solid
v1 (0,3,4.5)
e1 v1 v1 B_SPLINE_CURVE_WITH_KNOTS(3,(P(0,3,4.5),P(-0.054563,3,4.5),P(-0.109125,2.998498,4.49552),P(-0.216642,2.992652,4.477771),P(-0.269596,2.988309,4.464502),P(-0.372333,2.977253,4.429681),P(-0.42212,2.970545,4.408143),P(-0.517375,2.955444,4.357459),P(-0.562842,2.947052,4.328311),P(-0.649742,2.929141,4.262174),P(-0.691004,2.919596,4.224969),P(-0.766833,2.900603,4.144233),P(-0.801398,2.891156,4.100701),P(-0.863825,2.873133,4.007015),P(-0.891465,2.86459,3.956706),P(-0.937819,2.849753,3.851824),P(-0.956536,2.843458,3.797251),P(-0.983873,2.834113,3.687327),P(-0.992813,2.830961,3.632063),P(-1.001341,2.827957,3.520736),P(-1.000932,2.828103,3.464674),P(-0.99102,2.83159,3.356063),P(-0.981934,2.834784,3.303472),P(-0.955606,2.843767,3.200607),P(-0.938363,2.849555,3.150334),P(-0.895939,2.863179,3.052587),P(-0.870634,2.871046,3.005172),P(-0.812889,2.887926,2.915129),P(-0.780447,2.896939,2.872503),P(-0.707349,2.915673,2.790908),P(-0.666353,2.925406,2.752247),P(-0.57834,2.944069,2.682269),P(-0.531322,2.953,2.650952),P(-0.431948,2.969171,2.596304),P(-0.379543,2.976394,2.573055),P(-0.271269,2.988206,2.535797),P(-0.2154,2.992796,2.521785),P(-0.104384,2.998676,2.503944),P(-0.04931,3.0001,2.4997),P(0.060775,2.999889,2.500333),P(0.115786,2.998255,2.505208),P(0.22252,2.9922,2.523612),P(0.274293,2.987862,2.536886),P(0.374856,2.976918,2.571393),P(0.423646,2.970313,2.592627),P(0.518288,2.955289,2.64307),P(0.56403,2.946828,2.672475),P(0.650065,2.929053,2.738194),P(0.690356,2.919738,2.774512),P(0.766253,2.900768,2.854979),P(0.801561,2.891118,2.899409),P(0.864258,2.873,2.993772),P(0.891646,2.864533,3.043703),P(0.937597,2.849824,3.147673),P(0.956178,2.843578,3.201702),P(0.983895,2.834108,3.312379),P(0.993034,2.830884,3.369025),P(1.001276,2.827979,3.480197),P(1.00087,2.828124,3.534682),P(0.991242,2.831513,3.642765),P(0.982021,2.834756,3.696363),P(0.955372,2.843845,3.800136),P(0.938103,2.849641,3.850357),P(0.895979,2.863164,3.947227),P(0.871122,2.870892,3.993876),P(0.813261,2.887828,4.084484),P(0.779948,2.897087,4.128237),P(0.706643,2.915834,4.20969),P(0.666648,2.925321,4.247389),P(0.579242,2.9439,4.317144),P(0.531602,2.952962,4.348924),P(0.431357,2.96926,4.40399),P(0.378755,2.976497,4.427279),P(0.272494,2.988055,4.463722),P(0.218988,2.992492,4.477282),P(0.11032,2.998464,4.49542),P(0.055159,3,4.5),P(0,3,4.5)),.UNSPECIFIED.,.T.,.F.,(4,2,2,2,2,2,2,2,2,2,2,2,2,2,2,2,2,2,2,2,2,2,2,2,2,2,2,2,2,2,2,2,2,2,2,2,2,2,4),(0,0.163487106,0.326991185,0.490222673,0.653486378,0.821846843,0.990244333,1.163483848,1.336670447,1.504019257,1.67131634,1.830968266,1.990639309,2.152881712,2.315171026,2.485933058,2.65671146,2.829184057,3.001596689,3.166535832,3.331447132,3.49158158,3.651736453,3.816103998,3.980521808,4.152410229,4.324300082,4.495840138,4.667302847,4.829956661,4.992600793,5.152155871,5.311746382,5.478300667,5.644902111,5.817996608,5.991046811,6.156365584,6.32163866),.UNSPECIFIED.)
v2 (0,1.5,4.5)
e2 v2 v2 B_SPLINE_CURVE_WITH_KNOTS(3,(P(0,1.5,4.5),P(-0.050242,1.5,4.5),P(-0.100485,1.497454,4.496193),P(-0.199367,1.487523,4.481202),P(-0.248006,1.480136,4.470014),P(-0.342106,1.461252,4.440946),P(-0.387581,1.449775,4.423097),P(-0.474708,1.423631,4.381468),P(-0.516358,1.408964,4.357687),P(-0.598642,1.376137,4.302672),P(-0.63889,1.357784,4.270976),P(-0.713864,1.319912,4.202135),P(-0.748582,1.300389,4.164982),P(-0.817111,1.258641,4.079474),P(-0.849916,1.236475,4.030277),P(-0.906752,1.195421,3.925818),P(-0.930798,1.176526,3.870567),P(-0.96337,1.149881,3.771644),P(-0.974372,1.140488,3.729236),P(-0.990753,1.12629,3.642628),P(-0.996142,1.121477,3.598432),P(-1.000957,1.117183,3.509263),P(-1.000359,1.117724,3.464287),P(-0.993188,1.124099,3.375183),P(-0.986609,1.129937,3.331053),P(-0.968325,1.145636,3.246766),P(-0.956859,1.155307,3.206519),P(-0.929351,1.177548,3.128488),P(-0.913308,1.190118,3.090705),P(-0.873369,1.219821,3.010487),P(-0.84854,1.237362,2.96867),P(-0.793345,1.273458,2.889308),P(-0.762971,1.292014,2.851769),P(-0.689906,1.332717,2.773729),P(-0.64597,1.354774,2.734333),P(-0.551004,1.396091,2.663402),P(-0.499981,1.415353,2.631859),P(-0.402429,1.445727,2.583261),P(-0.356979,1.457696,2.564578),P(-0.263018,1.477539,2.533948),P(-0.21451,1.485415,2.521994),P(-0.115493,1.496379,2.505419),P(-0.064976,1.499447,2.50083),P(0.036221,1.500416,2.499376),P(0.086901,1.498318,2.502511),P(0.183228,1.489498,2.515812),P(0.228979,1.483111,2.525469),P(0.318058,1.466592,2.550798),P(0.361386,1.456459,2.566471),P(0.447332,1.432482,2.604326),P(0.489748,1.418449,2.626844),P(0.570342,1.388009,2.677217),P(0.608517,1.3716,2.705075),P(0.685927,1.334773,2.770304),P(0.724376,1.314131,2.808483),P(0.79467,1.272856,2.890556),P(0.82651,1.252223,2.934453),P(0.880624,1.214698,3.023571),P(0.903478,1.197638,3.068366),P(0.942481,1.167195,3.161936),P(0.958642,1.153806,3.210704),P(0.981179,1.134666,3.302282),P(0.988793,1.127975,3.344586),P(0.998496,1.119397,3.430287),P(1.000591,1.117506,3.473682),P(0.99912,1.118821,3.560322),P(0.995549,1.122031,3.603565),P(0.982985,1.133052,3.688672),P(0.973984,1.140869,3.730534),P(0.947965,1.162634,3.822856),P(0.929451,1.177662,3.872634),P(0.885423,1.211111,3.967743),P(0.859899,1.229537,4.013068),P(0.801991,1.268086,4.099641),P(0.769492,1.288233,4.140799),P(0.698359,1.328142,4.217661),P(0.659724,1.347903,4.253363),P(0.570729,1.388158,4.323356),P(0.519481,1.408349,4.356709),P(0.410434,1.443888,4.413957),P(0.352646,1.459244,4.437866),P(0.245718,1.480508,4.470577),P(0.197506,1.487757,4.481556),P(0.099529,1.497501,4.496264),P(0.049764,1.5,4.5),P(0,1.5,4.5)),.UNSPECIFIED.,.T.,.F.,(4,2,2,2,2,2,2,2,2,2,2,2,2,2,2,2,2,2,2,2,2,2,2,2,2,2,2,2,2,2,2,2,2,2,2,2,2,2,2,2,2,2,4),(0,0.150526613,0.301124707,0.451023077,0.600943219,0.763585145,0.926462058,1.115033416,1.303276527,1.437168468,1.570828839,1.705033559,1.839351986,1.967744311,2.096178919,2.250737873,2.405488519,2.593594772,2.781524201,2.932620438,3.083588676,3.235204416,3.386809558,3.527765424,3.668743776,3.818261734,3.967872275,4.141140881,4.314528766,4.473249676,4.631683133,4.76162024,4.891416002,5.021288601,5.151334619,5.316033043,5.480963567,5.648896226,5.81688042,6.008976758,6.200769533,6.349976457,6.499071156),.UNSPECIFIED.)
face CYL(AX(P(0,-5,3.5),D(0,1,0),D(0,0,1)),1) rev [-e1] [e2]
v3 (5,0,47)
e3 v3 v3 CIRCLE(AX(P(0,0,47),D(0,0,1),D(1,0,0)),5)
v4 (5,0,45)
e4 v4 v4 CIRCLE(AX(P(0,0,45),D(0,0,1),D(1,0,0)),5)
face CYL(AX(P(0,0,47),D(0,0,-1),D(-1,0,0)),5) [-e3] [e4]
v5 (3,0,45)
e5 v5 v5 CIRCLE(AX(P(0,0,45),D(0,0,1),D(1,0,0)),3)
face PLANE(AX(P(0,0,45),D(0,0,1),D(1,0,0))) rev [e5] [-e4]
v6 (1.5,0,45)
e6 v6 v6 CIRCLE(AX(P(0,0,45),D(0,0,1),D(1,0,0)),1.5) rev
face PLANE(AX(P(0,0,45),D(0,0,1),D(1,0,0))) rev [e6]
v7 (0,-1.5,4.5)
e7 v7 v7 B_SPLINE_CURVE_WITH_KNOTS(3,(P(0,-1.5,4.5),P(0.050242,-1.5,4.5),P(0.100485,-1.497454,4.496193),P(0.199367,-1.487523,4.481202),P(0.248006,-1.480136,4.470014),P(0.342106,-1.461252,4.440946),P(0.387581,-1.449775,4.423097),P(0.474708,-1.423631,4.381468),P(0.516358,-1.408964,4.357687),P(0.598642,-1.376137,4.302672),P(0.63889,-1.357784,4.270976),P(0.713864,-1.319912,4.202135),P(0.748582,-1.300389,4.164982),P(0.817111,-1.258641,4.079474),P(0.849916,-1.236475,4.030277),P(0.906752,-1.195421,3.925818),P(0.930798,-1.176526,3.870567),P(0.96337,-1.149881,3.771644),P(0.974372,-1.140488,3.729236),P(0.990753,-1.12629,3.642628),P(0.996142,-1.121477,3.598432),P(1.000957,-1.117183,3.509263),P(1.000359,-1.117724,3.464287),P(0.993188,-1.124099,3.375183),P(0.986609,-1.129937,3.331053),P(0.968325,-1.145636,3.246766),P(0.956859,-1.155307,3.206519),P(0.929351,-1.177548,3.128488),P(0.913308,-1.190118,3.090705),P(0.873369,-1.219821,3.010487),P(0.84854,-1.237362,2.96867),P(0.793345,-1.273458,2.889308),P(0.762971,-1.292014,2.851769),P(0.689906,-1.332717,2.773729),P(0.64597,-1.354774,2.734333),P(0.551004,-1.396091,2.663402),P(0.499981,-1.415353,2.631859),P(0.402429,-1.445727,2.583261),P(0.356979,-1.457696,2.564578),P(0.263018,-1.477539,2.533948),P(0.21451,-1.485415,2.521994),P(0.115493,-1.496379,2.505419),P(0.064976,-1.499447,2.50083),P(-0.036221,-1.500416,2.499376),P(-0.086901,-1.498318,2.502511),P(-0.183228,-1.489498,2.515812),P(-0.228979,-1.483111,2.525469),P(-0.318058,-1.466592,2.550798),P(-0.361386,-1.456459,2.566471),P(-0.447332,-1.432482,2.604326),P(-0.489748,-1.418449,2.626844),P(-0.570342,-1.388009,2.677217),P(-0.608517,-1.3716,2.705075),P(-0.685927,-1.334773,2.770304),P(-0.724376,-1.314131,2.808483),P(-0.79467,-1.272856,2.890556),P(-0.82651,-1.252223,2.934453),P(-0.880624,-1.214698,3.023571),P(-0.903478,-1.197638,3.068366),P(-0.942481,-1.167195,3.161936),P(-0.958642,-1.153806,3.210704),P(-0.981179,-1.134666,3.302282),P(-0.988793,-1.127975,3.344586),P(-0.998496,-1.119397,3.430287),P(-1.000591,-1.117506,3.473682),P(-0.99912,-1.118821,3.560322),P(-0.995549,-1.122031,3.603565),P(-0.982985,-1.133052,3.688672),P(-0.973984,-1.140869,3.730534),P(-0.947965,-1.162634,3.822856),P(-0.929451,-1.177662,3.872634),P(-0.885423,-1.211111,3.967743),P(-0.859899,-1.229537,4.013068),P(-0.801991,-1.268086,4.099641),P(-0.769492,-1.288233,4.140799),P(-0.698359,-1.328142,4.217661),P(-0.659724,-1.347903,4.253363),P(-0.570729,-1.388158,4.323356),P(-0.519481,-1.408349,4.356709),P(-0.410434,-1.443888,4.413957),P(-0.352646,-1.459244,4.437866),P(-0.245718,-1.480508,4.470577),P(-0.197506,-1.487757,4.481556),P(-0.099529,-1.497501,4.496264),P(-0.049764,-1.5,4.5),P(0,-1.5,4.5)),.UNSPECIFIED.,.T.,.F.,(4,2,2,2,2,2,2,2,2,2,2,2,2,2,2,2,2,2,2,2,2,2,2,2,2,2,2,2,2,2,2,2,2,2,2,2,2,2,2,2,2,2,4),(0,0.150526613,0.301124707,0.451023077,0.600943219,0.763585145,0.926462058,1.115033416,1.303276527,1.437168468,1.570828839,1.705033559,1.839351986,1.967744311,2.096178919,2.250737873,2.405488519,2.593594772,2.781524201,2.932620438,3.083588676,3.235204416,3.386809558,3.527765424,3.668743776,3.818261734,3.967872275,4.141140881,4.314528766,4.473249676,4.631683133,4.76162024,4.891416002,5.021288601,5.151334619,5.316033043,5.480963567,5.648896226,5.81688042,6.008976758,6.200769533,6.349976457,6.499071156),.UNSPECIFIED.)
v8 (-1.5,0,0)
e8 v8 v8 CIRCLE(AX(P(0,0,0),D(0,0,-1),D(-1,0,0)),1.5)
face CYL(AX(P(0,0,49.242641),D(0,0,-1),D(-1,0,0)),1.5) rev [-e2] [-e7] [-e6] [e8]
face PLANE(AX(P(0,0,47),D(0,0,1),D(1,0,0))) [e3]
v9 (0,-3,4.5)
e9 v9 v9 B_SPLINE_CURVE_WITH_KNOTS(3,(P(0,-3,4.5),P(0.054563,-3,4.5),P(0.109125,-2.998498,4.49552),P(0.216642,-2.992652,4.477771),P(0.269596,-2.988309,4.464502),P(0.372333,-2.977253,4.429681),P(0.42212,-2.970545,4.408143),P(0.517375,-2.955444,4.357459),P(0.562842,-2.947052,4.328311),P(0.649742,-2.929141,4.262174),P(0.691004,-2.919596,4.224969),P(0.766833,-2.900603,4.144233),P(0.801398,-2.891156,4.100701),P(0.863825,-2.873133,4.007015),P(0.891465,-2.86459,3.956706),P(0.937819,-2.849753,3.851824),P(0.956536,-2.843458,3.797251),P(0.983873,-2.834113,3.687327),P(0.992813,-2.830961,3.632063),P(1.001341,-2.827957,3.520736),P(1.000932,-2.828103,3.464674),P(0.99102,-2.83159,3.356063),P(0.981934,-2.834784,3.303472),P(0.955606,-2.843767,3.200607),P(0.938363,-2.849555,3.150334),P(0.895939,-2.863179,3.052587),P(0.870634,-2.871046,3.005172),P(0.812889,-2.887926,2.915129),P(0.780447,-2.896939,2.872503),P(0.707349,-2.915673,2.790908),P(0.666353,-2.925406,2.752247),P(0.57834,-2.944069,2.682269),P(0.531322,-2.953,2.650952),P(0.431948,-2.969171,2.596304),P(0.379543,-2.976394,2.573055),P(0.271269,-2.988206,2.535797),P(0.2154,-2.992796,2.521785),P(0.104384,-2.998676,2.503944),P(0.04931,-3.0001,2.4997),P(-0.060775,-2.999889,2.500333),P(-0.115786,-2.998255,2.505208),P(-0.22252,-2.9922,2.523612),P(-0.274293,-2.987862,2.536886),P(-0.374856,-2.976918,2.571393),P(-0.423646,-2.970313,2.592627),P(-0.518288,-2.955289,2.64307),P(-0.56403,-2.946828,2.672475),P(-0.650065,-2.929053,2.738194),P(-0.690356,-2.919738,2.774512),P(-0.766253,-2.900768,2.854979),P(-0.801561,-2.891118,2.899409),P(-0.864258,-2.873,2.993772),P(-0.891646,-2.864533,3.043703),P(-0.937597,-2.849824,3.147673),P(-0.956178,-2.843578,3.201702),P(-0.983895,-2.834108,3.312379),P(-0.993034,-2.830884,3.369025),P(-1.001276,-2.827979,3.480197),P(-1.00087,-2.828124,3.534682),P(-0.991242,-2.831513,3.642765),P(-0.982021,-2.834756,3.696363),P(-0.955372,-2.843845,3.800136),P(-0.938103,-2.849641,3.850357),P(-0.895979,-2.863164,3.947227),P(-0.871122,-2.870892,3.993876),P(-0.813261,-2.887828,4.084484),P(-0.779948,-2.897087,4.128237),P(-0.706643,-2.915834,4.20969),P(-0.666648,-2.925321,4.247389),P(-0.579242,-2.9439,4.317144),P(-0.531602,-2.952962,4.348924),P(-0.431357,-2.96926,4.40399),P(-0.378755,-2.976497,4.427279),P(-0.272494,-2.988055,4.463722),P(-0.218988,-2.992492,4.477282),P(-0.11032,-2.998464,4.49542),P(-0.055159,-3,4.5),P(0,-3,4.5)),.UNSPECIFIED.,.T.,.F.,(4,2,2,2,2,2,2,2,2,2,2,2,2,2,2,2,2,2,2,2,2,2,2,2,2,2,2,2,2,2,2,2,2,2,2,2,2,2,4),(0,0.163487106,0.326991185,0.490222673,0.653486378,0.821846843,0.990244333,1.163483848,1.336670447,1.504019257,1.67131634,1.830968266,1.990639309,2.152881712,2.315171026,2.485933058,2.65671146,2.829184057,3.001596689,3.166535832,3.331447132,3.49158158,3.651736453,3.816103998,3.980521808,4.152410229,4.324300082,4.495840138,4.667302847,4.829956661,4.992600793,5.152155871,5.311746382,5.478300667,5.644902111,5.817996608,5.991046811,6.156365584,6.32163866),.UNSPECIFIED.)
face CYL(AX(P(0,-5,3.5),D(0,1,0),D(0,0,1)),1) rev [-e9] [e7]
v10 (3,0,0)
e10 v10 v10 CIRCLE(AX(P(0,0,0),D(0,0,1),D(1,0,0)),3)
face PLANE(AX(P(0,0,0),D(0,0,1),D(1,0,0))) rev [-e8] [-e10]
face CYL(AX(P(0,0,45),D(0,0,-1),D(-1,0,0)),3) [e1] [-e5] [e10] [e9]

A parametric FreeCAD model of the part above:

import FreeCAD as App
import Part
import Sketcher
from FreeCAD import Vector
Q = App.Units.Quantity

doc = App.newDocument("Part")
body = doc.addObject("PartDesign::Body", "Body")

sketch1 = body.newObject("Sketcher::SketchObject", "Sketch")
sketch1.AttachmentSupport = (doc.getObject("XY_Plane"), [""])
sketch1.MapMode = "FlatFace"
sketch1.addGeometry(Part.Circle(Vector(0, 0, 0), Vector(0, 0, 1), 3), False)
sketch1.addConstraint([
    Sketcher.Constraint("Coincident", 0, 3, -1, 1),
    Sketcher.Constraint("Diameter", 0, Q("6 mm")),
])
pad1 = body.newObject("PartDesign::Pad", "Pad")
pad1.Profile = sketch1
pad1.Length = 45

sketch2 = body.newObject("Sketcher::SketchObject", "Sketch001")
sketch2.AttachmentSupport = (doc.getObject("XY_Plane"), [""])
sketch2.MapMode = "FlatFace"
sketch2.AttachmentOffset = App.Placement(Vector(0, 0, 45), App.Rotation())
sketch2.addGeometry(Part.Circle(Vector(0, 0, 0), Vector(0, 0, 1), 5), False)
sketch2.addConstraint([
    Sketcher.Constraint("Coincident", 0, 3, -1, 1),
    Sketcher.Constraint("Diameter", 0, Q("10 mm")),
])
pad2 = body.newObject("PartDesign::Pad", "Pad001")
pad2.Profile = sketch2
pad2.Length = 2

sketch3 = body.newObject("Sketcher::SketchObject", "Sketch002")
sketch3.AttachmentSupport = (doc.getObject("XZ_Plane"), [""])
sketch3.MapMode = "FlatFace"
sketch3.addGeometry(Part.Circle(Vector(0, 3.5, 0), Vector(0, 0, 1), 1), False)
sketch3.addConstraint([
    Sketcher.Constraint("PointOnObject", 0, 3, -2),
    Sketcher.Constraint("Diameter", 0, Q("2 mm")),
    Sketcher.Constraint("DistanceY", -1, 1, 0, 3, Q("3.5 mm")),
])
pocket1 = body.newObject("PartDesign::Pocket", "Pocket")
pocket1.Profile = sketch3
pocket1.Type = "ThroughAll"
pocket1.Midplane = True

sketch4 = body.newObject("Sketcher::SketchObject", "Sketch003")
sketch4.AttachmentSupport = (doc.getObject("XY_Plane"), [""])
sketch4.MapMode = "FlatFace"
sketch4.addGeometry(Part.Circle(Vector(0, 0, 0), Vector(0, 0, 1), 1.5), False)
sketch4.addConstraint([
    Sketcher.Constraint("Coincident", 0, 3, -1, 1),
    Sketcher.Constraint("Diameter", 0, Q("3 mm")),
])
pocket2 = body.newObject("PartDesign::Pocket", "Pocket001")
pocket2.Profile = sketch4
pocket2.Length = 45
pocket2.Reversed = True

doc.recompute()
